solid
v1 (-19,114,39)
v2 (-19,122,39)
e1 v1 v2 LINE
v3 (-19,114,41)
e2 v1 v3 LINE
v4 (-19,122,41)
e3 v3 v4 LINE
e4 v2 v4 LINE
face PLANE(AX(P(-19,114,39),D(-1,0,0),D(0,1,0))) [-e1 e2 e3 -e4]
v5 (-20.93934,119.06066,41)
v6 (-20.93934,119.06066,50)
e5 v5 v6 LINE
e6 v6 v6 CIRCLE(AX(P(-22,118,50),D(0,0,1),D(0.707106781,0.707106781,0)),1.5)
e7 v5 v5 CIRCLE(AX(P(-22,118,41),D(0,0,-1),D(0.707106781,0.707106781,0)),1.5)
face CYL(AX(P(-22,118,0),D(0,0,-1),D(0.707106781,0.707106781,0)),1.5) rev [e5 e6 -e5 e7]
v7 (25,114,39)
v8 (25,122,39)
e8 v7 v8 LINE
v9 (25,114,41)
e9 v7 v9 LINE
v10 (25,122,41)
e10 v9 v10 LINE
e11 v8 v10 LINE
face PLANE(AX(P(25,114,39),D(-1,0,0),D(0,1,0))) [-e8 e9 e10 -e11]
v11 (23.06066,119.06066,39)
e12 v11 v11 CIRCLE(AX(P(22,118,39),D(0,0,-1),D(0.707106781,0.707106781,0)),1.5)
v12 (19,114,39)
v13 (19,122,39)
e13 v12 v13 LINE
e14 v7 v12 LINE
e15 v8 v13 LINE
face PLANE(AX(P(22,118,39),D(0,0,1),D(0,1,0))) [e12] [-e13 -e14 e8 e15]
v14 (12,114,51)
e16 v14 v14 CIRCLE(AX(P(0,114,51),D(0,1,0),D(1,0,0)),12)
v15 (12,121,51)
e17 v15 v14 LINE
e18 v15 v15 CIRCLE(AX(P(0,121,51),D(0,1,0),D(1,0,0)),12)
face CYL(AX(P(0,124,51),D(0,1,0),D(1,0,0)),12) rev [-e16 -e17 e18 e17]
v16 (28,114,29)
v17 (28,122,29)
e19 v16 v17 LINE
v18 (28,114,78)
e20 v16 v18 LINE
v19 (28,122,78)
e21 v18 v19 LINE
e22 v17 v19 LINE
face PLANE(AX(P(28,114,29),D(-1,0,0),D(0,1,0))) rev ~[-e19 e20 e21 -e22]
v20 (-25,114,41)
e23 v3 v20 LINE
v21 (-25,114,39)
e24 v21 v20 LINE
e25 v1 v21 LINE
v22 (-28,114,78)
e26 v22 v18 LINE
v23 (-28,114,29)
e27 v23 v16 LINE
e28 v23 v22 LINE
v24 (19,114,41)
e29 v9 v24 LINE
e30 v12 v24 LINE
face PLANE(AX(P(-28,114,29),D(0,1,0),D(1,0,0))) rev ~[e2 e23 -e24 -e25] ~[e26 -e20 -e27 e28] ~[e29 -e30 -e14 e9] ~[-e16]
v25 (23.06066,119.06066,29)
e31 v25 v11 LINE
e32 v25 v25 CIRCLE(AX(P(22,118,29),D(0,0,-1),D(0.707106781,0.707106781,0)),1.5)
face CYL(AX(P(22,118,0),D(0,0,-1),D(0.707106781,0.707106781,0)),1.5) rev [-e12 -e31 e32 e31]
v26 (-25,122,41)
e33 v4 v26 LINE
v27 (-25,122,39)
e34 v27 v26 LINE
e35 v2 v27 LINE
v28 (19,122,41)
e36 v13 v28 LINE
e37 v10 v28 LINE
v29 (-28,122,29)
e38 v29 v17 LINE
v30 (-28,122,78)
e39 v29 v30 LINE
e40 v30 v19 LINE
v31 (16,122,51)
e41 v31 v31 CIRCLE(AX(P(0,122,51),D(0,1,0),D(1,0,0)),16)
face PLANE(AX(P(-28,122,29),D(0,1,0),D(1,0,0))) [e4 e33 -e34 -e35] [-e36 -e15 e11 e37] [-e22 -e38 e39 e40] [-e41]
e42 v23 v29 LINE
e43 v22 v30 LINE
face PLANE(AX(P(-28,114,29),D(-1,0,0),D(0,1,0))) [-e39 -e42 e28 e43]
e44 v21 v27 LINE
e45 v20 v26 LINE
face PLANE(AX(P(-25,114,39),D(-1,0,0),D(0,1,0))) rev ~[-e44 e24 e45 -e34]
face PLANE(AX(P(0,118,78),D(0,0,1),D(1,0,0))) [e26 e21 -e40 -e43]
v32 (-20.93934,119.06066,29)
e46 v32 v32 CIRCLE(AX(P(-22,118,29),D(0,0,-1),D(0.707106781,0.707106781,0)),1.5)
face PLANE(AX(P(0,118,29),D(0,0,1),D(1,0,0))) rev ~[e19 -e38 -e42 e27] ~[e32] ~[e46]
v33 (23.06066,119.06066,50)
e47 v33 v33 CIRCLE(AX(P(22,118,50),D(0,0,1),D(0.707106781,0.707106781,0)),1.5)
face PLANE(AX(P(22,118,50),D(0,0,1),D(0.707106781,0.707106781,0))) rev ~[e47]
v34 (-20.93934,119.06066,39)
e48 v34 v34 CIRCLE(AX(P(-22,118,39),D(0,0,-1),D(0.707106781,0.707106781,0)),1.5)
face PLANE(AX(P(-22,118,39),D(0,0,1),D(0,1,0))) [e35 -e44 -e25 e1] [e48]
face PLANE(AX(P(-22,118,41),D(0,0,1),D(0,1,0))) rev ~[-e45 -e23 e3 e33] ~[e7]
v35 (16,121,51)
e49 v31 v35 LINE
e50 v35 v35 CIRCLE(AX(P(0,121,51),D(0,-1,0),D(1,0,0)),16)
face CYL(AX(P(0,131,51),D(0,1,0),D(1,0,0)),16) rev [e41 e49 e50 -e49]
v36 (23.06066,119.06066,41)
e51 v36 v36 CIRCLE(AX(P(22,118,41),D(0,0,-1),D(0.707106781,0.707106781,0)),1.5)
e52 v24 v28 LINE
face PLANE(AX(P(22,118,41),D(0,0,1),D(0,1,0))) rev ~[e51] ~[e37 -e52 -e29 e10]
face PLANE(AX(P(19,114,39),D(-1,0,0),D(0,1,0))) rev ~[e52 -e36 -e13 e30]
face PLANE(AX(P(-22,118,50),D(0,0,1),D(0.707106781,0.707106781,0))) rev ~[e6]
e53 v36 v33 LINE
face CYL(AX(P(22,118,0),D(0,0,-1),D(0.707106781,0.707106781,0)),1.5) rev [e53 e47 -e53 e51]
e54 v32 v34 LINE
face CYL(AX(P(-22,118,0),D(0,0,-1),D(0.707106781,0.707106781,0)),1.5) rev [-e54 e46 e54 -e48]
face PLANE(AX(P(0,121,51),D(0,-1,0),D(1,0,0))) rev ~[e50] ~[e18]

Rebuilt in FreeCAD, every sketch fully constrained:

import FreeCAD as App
import Part
import Sketcher

V = App.Vector
Q = App.Units.Quantity


def add_polygon(sketch, points):
    """Adds a closed chain of lines whose ends are joined by coincident constraints."""
    first, n = sketch.GeometryCount, len(points)
    for a, b in zip(points, points[1:] + points[:1]):
        sketch.addGeometry(Part.LineSegment(App.Vector(*a, 0), App.Vector(*b, 0)), False)
    for i in range(n):
        sketch.addConstraint(Sketcher.Constraint("Coincident", first + i, 2, first + (i + 1) % n, 1))

doc = App.newDocument("Part")
body = doc.addObject("PartDesign::Body", "Body")

sketch1 = body.newObject("Sketcher::SketchObject", "Sketch")
sketch1.AttachmentSupport = (doc.getObject("XZ_Plane"), [""])
sketch1.MapMode = "FlatFace"
sketch1.AttachmentOffset = App.Placement(V(0, 0, -131), App.Rotation())
sketch1.addGeometry(Part.Circle(V(0, 51, 0), V(0, 0, 1), 16), False)
sketch1.addGeometry(Part.Circle(V(0, 51, 0), V(0, 0, 1), 8), False)
sketch1.addConstraint(Sketcher.Constraint("Coincident", 1, 3, 0, 3))
sketch1.addConstraint(Sketcher.Constraint("PointOnObject", 0, 3, -2))
sketch1.addConstraint(Sketcher.Constraint("Diameter", 0, Q("32 mm")))
sketch1.addConstraint(Sketcher.Constraint("Diameter", 1, Q("17 mm")))
sketch1.addConstraint(Sketcher.Constraint("DistanceY", -1, 1, 0, 3, Q("51 mm")))
pad1 = body.newObject("PartDesign::Pad", "Pad")
pad1.Profile = sketch1
pad1.Length = 10
body2 = doc.addObject("PartDesign::Body", "Body001")

sketch2 = body2.newObject("Sketcher::SketchObject", "Sketch001")
sketch2.AttachmentSupport = (doc.getObject("XY_Plane001"), [""])
sketch2.MapMode = "FlatFace"
sketch2.addGeometry(Part.Circle(V(0, 0, 0), V(0, 0, 1), 1.5), False)
sketch2.addConstraint(Sketcher.Constraint("Coincident", 0, 3, -1, 1))
sketch2.addConstraint(Sketcher.Constraint("Diameter", 0, Q("3 mm")))
pad2 = body2.newObject("PartDesign::Pad", "Pad001")
pad2.Profile = sketch2
pad2.Length = 50
body3 = doc.addObject("PartDesign::Body", "Body002")
doc.recompute()

body2.Placement = App.Placement(V(22, 118, 0), App.Rotation(V(0, 0, 1), 45))
boolean = body3.newObject("PartDesign::Boolean", "Boolean")
boolean.Type = "Fuse"
boolean.addObjects([body2])
body4 = doc.addObject("PartDesign::Body", "Body003")

sketch3 = body4.newObject("Sketcher::SketchObject", "Sketch002")
sketch3.AttachmentSupport = (doc.getObject("XY_Plane003"), [""])
sketch3.MapMode = "FlatFace"
sketch3.addGeometry(Part.Circle(V(0, 0, 0), V(0, 0, 1), 1.5), False)
sketch3.addConstraint(Sketcher.Constraint("Coincident", 0, 3, -1, 1))
sketch3.addConstraint(Sketcher.Constraint("Diameter", 0, Q("3 mm")))
pad3 = body4.newObject("PartDesign::Pad", "Pad002")
pad3.Profile = sketch3
pad3.Length = 50
body5 = doc.addObject("PartDesign::Body", "Body004")
body5.AllowCompound = True
doc.recompute()

body4.Placement = App.Placement(V(-22, 118, 0), App.Rotation(V(0, 0, 1), 45))
boolean2 = body5.newObject("PartDesign::Boolean", "Boolean001")
boolean2.Type = "Fuse"
boolean2.addObjects([body4])
doc.recompute()

boolean3 = body5.newObject("PartDesign::Boolean", "Boolean002")
boolean3.Type = "Fuse"
boolean3.addObjects([body3])
body6 = doc.addObject("PartDesign::Body", "Body005")

sketch4 = body6.newObject("Sketcher::SketchObject", "Sketch003")
sketch4.AttachmentSupport = (doc.getObject("XY_Plane005"), [""])
sketch4.MapMode = "FlatFace"
sketch4.AttachmentOffset = App.Placement(V(0, 0, 39), App.Rotation())
add_polygon(sketch4, [(-25, 114), (-19, 114), (-19, 122), (-25, 122)])
sketch4.addConstraint(Sketcher.Constraint("Horizontal", 0))
sketch4.addConstraint(Sketcher.Constraint("Vertical", 1))
sketch4.addConstraint(Sketcher.Constraint("Horizontal", 2))
sketch4.addConstraint(Sketcher.Constraint("Vertical", 3))
sketch4.addConstraint(Sketcher.Constraint("DistanceX", 0, 1, 0, 2, Q("6 mm")))
sketch4.addConstraint(Sketcher.Constraint("DistanceY", 1, 1, 1, 2, Q("8 mm")))
sketch4.addConstraint(Sketcher.Constraint("DistanceX", 0, 2, -1, 1, Q("19 mm")))
sketch4.addConstraint(Sketcher.Constraint("DistanceY", -1, 1, 0, 2, Q("114 mm")))
pad4 = body6.newObject("PartDesign::Pad", "Pad003")
pad4.Profile = sketch4
pad4.Length = 2
body7 = doc.addObject("PartDesign::Body", "Body006")
body7.AllowCompound = True

sketch5 = body7.newObject("Sketcher::SketchObject", "Sketch004")
sketch5.AttachmentSupport = (doc.getObject("XY_Plane006"), [""])
sketch5.MapMode = "FlatFace"
sketch5.AttachmentOffset = App.Placement(V(0, 0, 39), App.Rotation())
add_polygon(sketch5, [(19, 114), (25, 114), (25, 122), (19, 122)])
sketch5.addConstraint(Sketcher.Constraint("Horizontal", 0))
sketch5.addConstraint(Sketcher.Constraint("Vertical", 1))
sketch5.addConstraint(Sketcher.Constraint("Horizontal", 2))
sketch5.addConstraint(Sketcher.Constraint("Vertical", 3))
sketch5.addConstraint(Sketcher.Constraint("DistanceX", 0, 1, 0, 2, Q("6 mm")))
sketch5.addConstraint(Sketcher.Constraint("DistanceY", 1, 1, 1, 2, Q("8 mm")))
sketch5.addConstraint(Sketcher.Constraint("DistanceX", -1, 1, 0, 2, Q("25 mm")))
sketch5.addConstraint(Sketcher.Constraint("DistanceY", -1, 1, 0, 2, Q("114 mm")))
pad5 = body7.newObject("PartDesign::Pad", "Pad004")
pad5.Profile = sketch5
pad5.Length = 2
doc.recompute()

boolean4 = body7.newObject("PartDesign::Boolean", "Boolean003")
boolean4.Type = "Fuse"
boolean4.addObjects([body6])
body8 = doc.addObject("PartDesign::Body", "Body007")

sketch6 = body8.newObject("Sketcher::SketchObject", "Sketch005")
sketch6.AttachmentSupport = (doc.getObject("XZ_Plane007"), [""])
sketch6.MapMode = "FlatFace"
sketch6.AttachmentOffset = App.Placement(V(0, 0, -124), App.Rotation())
sketch6.addGeometry(Part.Circle(V(0, 51, 0), V(0, 0, 1), 12), False)
sketch6.addConstraint(Sketcher.Constraint("PointOnObject", 0, 3, -2))
sketch6.addConstraint(Sketcher.Constraint("Diameter", 0, Q("24 mm")))
sketch6.addConstraint(Sketcher.Constraint("DistanceY", -1, 1, 0, 3, Q("51 mm")))
pad6 = body8.newObject("PartDesign::Pad", "Pad005")
pad6.Profile = sketch6
pad6.Length = 20
body9 = doc.addObject("PartDesign::Body", "Body008")

sketch7 = body9.newObject("Sketcher::SketchObject", "Sketch006")
sketch7.AttachmentSupport = (doc.getObject("XY_Plane008"), [""])
sketch7.MapMode = "FlatFace"
sketch7.AttachmentOffset = App.Placement(V(0, 0, 29), App.Rotation())
add_polygon(sketch7, [(-28, 122), (-28, 114), (28, 114), (28, 122)])
sketch7.addConstraint(Sketcher.Constraint("Vertical", 0))
sketch7.addConstraint(Sketcher.Constraint("Horizontal", 1))
sketch7.addConstraint(Sketcher.Constraint("Vertical", 2))
sketch7.addConstraint(Sketcher.Constraint("Horizontal", 3))
sketch7.addConstraint(Sketcher.Constraint("DistanceX", 1, 1, 1, 2, Q("56 mm")))
sketch7.addConstraint(Sketcher.Constraint("DistanceY", 0, 2, 0, 1, Q("8 mm")))
sketch7.addConstraint(Sketcher.Constraint("DistanceX", 0, 2, -1, 1, Q("28 mm")))
sketch7.addConstraint(Sketcher.Constraint("DistanceY", -1, 1, 0, 2, Q("114 mm")))
pad7 = body9.newObject("PartDesign::Pad", "Pad006")
pad7.Profile = sketch7
pad7.Length = 49
doc.recompute()

boolean5 = body9.newObject("PartDesign::Boolean", "Boolean004")
boolean5.Type = "Cut"
boolean5.addObjects([body8])
doc.recompute()

boolean6 = body9.newObject("PartDesign::Boolean", "Boolean005")
boolean6.Type = "Cut"
boolean6.addObjects([body7])
doc.recompute()

boolean7 = body9.newObject("PartDesign::Boolean", "Boolean006")
boolean7.Type = "Cut"
boolean7.addObjects([body5])
doc.recompute()

boolean8 = body9.newObject("PartDesign::Boolean", "Boolean007")
boolean8.Type = "Cut"
boolean8.addObjects([body])

doc.recompute()
